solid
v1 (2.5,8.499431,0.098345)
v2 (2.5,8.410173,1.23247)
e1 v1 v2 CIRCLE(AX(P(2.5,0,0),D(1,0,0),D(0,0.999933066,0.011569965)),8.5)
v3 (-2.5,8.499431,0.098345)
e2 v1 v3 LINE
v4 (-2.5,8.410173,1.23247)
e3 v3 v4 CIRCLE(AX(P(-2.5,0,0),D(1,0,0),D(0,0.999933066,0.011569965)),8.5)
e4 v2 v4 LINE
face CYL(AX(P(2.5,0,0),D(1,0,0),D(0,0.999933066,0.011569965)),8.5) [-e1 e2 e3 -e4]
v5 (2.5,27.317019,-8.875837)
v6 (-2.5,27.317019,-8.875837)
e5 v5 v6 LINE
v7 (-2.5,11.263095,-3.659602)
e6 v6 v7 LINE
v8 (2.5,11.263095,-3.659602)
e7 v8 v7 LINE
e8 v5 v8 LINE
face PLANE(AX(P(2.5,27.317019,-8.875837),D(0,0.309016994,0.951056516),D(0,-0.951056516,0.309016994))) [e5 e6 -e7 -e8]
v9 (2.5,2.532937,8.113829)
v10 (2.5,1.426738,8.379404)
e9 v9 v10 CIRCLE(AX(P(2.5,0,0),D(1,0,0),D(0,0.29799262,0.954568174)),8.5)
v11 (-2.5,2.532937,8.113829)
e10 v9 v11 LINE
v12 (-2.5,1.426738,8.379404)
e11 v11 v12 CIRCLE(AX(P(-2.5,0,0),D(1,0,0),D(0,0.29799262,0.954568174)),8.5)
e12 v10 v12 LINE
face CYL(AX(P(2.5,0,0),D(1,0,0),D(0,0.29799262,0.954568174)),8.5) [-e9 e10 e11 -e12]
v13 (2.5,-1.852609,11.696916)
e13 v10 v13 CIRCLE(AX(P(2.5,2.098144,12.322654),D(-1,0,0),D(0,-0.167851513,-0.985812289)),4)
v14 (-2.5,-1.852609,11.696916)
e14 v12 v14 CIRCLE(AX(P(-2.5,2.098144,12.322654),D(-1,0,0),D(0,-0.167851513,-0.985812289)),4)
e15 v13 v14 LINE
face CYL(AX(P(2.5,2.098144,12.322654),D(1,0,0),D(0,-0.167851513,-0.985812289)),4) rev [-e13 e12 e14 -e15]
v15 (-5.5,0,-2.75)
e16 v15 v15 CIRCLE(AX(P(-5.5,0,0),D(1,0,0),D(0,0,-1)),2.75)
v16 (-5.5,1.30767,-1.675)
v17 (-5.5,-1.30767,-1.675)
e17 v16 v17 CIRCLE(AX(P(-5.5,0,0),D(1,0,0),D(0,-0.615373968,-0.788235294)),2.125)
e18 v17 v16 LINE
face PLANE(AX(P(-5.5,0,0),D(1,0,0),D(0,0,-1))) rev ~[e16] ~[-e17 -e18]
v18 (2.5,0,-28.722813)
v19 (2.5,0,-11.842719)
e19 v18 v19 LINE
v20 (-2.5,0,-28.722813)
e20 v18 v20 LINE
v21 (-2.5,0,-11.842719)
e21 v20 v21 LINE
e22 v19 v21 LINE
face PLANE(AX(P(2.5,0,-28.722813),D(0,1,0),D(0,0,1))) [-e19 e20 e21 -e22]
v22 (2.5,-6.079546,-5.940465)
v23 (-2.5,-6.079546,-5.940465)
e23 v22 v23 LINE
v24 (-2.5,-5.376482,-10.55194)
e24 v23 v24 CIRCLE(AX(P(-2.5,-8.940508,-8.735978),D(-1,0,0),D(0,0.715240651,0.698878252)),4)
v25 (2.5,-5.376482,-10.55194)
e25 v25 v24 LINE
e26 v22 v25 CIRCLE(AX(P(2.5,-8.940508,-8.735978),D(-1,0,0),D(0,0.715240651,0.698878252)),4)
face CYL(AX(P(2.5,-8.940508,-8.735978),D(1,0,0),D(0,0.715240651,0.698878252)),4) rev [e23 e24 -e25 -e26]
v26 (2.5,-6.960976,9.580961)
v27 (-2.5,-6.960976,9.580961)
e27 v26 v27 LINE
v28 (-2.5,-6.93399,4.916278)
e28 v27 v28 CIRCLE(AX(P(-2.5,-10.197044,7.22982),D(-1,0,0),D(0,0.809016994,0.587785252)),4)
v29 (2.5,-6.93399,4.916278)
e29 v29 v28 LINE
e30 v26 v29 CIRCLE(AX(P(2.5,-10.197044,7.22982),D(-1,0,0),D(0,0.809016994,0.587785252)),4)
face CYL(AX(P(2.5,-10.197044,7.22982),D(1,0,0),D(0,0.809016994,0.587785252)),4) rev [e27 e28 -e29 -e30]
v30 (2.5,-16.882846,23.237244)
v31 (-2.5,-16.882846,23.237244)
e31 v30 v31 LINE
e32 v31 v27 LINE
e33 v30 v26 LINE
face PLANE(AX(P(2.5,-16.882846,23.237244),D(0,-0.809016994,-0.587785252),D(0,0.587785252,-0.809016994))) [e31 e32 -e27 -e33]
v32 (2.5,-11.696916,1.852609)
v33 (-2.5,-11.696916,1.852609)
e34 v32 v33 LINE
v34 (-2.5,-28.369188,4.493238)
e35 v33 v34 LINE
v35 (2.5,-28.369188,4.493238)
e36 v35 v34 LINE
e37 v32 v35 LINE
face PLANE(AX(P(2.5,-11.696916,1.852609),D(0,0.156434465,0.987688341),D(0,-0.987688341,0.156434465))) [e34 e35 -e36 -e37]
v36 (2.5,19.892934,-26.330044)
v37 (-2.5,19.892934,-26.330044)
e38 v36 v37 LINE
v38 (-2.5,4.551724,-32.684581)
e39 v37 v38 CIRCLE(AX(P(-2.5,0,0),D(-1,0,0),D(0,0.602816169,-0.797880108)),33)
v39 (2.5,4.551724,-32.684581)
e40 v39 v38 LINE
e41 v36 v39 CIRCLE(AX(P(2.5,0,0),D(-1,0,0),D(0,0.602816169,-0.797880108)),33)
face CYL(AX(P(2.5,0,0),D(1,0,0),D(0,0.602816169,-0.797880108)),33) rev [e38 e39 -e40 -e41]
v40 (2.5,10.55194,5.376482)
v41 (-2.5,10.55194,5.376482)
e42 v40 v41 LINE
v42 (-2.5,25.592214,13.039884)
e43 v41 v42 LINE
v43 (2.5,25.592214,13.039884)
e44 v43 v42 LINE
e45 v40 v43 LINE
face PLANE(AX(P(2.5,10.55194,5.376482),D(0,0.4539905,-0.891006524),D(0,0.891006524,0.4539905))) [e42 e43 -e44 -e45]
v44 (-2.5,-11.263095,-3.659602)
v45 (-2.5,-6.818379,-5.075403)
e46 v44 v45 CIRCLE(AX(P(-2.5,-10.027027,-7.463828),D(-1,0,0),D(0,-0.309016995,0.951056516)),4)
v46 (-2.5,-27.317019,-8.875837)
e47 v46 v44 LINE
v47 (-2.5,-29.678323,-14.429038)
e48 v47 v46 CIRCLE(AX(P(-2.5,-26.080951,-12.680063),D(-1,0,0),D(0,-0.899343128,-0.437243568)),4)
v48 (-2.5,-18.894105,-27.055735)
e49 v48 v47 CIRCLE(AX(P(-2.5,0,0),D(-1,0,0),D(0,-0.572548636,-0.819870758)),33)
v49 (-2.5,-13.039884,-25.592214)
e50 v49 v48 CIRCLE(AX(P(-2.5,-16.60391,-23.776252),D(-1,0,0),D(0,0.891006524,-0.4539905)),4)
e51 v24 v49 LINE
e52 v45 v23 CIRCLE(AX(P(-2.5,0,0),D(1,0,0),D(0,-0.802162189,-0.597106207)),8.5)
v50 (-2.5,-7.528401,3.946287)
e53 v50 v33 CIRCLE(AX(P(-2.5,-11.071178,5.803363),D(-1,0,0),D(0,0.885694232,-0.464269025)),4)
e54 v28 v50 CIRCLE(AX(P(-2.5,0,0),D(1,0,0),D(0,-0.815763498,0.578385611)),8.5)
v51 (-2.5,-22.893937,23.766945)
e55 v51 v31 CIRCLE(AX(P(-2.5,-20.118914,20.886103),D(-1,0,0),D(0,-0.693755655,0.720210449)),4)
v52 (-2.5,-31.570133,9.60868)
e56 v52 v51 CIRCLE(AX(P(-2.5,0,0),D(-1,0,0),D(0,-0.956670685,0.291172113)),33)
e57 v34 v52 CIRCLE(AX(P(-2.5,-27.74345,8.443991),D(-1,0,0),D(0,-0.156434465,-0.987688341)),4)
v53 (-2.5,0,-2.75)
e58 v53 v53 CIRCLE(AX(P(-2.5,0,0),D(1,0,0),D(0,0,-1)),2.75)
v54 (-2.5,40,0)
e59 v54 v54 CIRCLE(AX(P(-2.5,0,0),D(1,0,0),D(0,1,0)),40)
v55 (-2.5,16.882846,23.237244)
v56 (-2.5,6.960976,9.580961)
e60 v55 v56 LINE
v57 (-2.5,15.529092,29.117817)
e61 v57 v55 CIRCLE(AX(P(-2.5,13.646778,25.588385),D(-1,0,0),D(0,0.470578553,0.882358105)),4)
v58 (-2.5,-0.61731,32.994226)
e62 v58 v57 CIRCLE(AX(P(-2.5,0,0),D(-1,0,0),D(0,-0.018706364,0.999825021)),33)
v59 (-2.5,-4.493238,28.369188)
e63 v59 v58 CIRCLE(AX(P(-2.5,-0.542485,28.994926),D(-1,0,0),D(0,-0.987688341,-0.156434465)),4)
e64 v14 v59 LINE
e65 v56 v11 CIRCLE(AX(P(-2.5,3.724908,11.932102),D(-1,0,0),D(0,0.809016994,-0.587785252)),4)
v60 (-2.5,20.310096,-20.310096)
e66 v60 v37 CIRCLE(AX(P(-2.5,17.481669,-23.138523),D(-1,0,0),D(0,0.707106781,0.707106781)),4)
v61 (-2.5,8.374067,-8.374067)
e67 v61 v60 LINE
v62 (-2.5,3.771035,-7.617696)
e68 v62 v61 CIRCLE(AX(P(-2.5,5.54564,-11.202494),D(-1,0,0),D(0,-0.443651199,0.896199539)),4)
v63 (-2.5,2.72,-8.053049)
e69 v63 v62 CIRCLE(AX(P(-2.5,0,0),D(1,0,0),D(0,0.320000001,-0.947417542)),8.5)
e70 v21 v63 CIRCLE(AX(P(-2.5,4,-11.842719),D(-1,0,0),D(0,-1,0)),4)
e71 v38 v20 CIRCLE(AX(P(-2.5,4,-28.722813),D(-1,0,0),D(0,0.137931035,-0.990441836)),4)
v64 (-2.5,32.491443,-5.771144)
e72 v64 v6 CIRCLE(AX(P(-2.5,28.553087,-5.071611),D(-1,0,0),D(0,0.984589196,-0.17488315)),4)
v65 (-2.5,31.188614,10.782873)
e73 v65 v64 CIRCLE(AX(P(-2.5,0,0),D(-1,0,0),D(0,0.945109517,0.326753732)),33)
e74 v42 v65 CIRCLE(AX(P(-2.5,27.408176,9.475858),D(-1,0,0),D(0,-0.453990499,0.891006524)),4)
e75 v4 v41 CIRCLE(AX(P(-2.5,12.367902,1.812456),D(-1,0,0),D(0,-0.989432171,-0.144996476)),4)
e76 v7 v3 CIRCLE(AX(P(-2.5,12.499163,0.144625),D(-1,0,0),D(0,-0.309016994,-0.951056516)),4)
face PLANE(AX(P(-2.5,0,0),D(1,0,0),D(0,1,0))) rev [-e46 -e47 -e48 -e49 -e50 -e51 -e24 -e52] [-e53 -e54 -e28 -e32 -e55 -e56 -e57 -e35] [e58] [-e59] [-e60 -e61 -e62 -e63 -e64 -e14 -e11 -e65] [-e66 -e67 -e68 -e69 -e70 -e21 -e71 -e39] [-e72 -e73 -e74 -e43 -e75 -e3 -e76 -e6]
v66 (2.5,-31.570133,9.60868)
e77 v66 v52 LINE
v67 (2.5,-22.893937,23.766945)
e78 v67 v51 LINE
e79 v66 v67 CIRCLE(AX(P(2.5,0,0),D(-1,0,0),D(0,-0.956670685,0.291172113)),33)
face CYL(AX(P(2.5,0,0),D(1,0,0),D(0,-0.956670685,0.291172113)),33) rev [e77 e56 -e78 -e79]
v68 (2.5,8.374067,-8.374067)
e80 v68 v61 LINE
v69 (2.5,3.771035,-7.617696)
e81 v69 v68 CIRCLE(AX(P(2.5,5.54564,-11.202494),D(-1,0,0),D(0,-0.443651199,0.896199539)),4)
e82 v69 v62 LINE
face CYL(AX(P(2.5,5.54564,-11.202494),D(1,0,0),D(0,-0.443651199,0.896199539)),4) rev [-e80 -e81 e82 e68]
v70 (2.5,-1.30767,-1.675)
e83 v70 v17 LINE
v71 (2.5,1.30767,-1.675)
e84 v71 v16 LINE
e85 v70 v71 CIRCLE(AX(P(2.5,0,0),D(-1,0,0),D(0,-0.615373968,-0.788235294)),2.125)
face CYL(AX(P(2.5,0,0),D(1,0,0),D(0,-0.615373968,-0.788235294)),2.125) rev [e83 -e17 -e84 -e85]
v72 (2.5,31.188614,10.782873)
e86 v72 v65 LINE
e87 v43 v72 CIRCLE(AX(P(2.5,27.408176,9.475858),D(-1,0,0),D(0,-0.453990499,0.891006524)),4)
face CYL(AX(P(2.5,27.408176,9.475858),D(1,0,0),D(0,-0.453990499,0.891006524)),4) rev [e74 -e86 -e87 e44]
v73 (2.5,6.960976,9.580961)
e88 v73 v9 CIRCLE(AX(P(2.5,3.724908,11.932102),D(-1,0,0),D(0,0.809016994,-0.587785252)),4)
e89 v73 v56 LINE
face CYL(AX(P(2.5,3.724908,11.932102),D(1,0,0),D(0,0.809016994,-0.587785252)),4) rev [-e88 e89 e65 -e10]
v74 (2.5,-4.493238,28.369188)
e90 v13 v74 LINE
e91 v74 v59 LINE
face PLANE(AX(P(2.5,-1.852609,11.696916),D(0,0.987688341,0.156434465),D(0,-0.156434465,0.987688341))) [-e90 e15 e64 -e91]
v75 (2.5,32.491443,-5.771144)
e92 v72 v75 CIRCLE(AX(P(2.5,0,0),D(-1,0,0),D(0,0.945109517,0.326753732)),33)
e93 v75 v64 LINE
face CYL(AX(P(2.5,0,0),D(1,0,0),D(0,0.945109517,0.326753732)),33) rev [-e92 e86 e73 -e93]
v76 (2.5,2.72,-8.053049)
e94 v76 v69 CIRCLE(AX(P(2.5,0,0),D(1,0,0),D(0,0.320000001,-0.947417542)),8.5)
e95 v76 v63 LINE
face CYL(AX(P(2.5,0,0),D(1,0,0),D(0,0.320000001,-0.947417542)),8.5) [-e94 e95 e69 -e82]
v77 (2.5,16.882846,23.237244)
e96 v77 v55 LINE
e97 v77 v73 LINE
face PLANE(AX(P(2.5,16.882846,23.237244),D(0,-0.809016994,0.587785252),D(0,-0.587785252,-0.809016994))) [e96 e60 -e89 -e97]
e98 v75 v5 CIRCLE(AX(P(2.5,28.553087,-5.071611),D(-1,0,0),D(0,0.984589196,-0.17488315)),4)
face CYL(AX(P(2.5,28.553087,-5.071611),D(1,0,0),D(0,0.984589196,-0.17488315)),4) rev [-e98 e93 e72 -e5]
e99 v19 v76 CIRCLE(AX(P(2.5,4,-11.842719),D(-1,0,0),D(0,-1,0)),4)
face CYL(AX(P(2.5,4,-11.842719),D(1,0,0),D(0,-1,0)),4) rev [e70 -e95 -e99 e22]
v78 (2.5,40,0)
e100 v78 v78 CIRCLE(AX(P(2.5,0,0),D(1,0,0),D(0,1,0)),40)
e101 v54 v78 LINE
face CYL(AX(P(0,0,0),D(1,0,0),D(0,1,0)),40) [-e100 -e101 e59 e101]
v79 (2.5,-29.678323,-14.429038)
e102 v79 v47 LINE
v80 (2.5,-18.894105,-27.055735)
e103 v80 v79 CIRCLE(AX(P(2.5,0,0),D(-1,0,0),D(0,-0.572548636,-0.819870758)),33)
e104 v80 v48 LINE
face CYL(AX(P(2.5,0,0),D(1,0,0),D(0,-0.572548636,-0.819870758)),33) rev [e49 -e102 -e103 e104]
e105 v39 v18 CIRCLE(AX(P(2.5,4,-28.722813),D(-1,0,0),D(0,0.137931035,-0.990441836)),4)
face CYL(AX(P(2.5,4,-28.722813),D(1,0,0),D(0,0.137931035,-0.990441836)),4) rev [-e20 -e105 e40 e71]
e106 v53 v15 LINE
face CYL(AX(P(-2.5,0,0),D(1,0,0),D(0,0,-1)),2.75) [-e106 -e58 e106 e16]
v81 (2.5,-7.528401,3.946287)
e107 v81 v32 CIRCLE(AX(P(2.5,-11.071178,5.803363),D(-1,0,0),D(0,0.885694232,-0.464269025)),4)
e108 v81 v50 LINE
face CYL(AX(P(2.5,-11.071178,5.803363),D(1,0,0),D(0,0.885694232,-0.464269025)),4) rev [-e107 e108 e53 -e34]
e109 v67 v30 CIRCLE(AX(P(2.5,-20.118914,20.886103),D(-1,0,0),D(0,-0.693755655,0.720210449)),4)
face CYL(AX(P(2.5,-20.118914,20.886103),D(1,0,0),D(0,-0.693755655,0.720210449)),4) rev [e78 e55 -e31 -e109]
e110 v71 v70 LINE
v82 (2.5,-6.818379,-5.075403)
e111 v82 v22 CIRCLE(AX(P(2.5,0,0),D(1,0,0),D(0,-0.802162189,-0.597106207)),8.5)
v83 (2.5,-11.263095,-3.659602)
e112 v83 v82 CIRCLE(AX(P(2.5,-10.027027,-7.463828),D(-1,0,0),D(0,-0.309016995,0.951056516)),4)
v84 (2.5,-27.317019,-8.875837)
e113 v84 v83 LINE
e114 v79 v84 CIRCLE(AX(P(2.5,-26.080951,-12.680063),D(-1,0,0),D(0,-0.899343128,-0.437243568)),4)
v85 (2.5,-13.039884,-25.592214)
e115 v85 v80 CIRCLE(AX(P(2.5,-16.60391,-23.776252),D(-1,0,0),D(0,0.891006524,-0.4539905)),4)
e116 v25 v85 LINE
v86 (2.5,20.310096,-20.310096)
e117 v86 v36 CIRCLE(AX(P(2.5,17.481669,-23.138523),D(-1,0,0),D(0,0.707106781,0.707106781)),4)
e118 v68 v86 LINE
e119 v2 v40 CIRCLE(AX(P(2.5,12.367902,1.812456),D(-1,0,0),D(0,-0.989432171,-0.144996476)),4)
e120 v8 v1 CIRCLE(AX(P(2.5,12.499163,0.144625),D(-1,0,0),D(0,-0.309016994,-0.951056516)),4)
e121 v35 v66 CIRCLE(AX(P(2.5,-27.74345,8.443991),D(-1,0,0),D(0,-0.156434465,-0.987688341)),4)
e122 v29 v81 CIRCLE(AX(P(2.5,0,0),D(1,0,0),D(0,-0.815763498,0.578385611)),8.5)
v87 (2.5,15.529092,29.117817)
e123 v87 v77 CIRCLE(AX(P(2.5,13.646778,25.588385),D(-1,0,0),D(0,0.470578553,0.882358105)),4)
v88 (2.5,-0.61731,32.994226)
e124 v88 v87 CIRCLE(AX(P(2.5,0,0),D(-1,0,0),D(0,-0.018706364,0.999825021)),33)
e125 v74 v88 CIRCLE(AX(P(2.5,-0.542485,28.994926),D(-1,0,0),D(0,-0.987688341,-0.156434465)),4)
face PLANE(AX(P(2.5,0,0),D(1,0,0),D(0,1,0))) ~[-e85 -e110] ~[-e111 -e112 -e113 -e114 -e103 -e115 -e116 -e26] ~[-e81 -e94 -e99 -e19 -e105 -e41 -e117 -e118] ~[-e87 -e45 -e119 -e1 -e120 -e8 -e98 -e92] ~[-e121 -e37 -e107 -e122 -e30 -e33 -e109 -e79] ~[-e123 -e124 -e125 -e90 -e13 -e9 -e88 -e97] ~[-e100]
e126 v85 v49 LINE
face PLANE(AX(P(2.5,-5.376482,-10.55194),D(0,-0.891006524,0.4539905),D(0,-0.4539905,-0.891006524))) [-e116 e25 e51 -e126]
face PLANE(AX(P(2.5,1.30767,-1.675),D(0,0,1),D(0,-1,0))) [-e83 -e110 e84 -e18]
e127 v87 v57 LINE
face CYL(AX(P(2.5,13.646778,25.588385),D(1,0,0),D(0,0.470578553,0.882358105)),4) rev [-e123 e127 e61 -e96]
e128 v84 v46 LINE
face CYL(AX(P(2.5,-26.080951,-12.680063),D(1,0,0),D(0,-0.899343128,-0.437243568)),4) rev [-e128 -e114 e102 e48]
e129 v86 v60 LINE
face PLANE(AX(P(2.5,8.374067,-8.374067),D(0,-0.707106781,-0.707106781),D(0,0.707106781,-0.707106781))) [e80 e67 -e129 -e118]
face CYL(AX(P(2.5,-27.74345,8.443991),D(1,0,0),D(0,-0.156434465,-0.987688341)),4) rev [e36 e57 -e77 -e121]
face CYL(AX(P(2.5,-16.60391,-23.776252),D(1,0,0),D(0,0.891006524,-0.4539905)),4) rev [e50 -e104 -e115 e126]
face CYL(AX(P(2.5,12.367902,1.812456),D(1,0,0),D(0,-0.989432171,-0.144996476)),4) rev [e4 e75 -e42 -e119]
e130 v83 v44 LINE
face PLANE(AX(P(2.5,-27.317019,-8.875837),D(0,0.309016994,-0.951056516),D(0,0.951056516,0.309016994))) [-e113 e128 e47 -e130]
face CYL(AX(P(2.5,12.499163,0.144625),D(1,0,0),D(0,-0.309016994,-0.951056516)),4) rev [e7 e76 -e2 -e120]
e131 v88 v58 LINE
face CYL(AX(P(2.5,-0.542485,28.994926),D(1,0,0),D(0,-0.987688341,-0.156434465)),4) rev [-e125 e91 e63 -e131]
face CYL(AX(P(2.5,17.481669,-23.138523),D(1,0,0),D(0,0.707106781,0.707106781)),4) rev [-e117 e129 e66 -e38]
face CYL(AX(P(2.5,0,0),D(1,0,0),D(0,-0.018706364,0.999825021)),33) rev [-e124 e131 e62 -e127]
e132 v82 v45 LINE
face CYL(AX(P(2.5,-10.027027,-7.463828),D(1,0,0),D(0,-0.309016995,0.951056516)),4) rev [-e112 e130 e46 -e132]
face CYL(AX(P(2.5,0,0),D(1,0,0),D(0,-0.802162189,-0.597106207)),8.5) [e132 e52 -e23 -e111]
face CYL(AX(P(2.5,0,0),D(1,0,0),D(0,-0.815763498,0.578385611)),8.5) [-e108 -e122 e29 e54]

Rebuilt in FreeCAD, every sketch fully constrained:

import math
import FreeCAD as App
import Part
import Sketcher
from FreeCAD import Vector
Q = App.Units.Quantity


def add_polygon(sketch, points):
    """Adds a closed chain of lines whose ends are joined by coincident constraints."""
    first, n = sketch.GeometryCount, len(points)
    for a, b in zip(points, points[1:] + points[:1]):
        sketch.addGeometry(Part.LineSegment(App.Vector(*a, 0), App.Vector(*b, 0)), False)
    for i in range(n):
        sketch.addConstraint(Sketcher.Constraint("Coincident", first + i, 2, first + (i + 1) % n, 1))

doc = App.newDocument("Part")
body = doc.addObject("PartDesign::Body", "Body")

sketch1 = doc.addObject("Sketcher::SketchObject", "Sketch")
body.addObject(sketch1)
sketch1.AttachmentSupport = (doc.XY_Plane, [""])
sketch1.MapMode = "FlatFace"
add_polygon(sketch1, [(-2, 40), (-2, 0), (2, 0), (2, 40)])
sketch1.addConstraint(Sketcher.Constraint("Vertical", 0))
sketch1.addConstraint(Sketcher.Constraint("Horizontal", 1))
sketch1.addConstraint(Sketcher.Constraint("Vertical", 2))
sketch1.addConstraint(Sketcher.Constraint("Horizontal", 3))
sketch1.addConstraint(Sketcher.Constraint("Symmetric", 0, 2, 1, 2, -1, 1))
sketch1.addConstraint(Sketcher.Constraint("DistanceX", 1, 1, 1, 2, Q("5 mm")))
sketch1.addConstraint(Sketcher.Constraint("DistanceY", 0, 2, 0, 1, Q("40 mm")))
revolution = doc.addObject("PartDesign::Revolution", "Revolution")
body.addObject(revolution)
revolution.Profile = sketch1
revolution.ReferenceAxis = (sketch1, ["H_Axis"])
revolution.Angle = 360

sketch2 = doc.addObject("Sketcher::SketchObject", "Sketch001")
body.addObject(sketch2)
sketch2.AttachmentSupport = (doc.YZ_Plane, [""])
sketch2.MapMode = "FlatFace"
sketch2.AttachmentOffset = App.Placement(Vector(0, 0, 2.5), App.Rotation())
sketch2.addGeometry(Part.LineSegment(Vector(20.3, -20.3, 0), Vector(8.4, -8.4, 0)), False)
sketch2.addGeometry(Part.ArcOfCircle(Part.Circle(Vector(5.5, -11.2, 0), Vector(0, 0, 1), 4), math.radians(45), math.radians(116)), False)
sketch2.addGeometry(Part.ArcOfCircle(Part.Circle(Vector(0, 0, 0), Vector(0, 0, 1), 8.5), math.radians(-71.34), math.radians(-63.66)), False)
sketch2.addGeometry(Part.ArcOfCircle(Part.Circle(Vector(4, -11.8, 0), Vector(0, 0, 1), 4), math.radians(109), math.radians(180)), False)
sketch2.addGeometry(Part.LineSegment(Vector(0, -11.8, 0), Vector(0, -28.7, 0)), False)
sketch2.addGeometry(Part.ArcOfCircle(Part.Circle(Vector(4, -28.7, 0), Vector(0, 0, 1), 4), math.radians(180), math.radians(278)), False)
sketch2.addGeometry(Part.ArcOfCircle(Part.Circle(Vector(0, 0, 0), Vector(0, 0, 1), 33), math.radians(-82), math.radians(-53)), False)
sketch2.addGeometry(Part.ArcOfCircle(Part.Circle(Vector(17.5, -23.1, 0), Vector(0, 0, 1), 4), math.radians(-53), math.radians(45)), False)
sketch2.addConstraint(Sketcher.Constraint("Tangent", 0, 2, 1, 1))
sketch2.addConstraint(Sketcher.Constraint("Tangent", 1, 2, 2, 2))
sketch2.addConstraint(Sketcher.Constraint("Tangent", 2, 1, 3, 1))
sketch2.addConstraint(Sketcher.Constraint("Tangent", 3, 2, 4, 1))
sketch2.addConstraint(Sketcher.Constraint("Tangent", 4, 2, 5, 1))
sketch2.addConstraint(Sketcher.Constraint("Tangent", 5, 2, 6, 1))
sketch2.addConstraint(Sketcher.Constraint("Tangent", 6, 2, 7, 1))
sketch2.addConstraint(Sketcher.Constraint("Tangent", 7, 2, 0, 1))
sketch2.addConstraint(Sketcher.Constraint("Vertical", 4))
sketch2.addConstraint(Sketcher.Constraint("Coincident", 2, 3, -1, 1))
sketch2.addConstraint(Sketcher.Constraint("Coincident", 6, 3, -1, 1))
sketch2.addConstraint(Sketcher.Constraint("Equal", 1, 3))
sketch2.addConstraint(Sketcher.Constraint("Equal", 3, 5))
sketch2.addConstraint(Sketcher.Constraint("Equal", 5, 7))
sketch2.addConstraint(Sketcher.Constraint("PointOnObject", 3, 2, -2))
sketch2.addConstraint(Sketcher.Constraint("Radius", 1, Q("4 mm")))
sketch2.addConstraint(Sketcher.Constraint("Radius", 6, Q("33 mm")))
sketch2.addConstraint(Sketcher.Constraint("Radius", 2, Q("8.5 mm")))
sketch2.addConstraint(Sketcher.Constraint("Angle", 0, Q("135 deg")))
sketch2.addConstraint(Sketcher.Constraint("DistanceX", 0, 2, 7, 3, Q("9.107602 mm")))
pocket1 = doc.addObject("PartDesign::Pocket", "Pocket")
body.addObject(pocket1)
pocket1.Profile = sketch2
pocket1.Length = 5
doc.recompute()

polarpattern = doc.addObject("PartDesign::PolarPattern", "PolarPattern")
body.addObject(polarpattern)
polarpattern.Originals = [pocket1]
polarpattern.Axis = (doc.X_Axis, [""])
polarpattern.Angle = 360
polarpattern.Occurrences = 5
body.Tip = polarpattern

sketch3 = doc.addObject("Sketcher::SketchObject", "Sketch002")
body.addObject(sketch3)
sketch3.AttachmentSupport = (doc.YZ_Plane, [""])
sketch3.MapMode = "FlatFace"
sketch3.AttachmentOffset = App.Placement(Vector(0, 0, -2.5), App.Rotation())
sketch3.addGeometry(Part.Circle(Vector(0, 0, 0), Vector(0, 0, 1), 2.8), False)
sketch3.addConstraint(Sketcher.Constraint("Coincident", 0, 3, -1, 1))
sketch3.addConstraint(Sketcher.Constraint("Diameter", 0, Q("5.5 mm")))
pad1 = doc.addObject("PartDesign::Pad", "Pad")
body.addObject(pad1)
pad1.Profile = sketch3
pad1.Length = 3
pad1.Reversed = True

sketch4 = doc.addObject("Sketcher::SketchObject", "Sketch003")
body.addObject(sketch4)
sketch4.AttachmentSupport = (doc.YZ_Plane, [""])
sketch4.MapMode = "FlatFace"
sketch4.AttachmentOffset = App.Placement(Vector(0, 0, 2.5), App.Rotation())
sketch4.addGeometry(Part.LineSegment(Vector(-1.3, -1.7, 0), Vector(1.3, -1.7, 0)), False)
sketch4.addGeometry(Part.ArcOfCircle(Part.Circle(Vector(0, 0, 0), Vector(0, 0, 1), 2.1), math.radians(-52), math.radians(232)), False)
sketch4.addConstraint(Sketcher.Constraint("Coincident", 0, 1, 1, 2))
sketch4.addConstraint(Sketcher.Constraint("Coincident", 1, 1, 0, 2))
sketch4.addConstraint(Sketcher.Constraint("Horizontal", 0))
sketch4.addConstraint(Sketcher.Constraint("Coincident", 1, 3, -1, 1))
sketch4.addConstraint(Sketcher.Constraint("Radius", 1, Q("2.125 mm")))
sketch4.addConstraint(Sketcher.Constraint("DistanceY", 0, 1, -1, 1, Q("1.675 mm")))
pocket2 = doc.addObject("PartDesign::Pocket", "Pocket001")
body.addObject(pocket2)
pocket2.Profile = sketch4
pocket2.Type = "UpToFirst"

doc.recompute()
